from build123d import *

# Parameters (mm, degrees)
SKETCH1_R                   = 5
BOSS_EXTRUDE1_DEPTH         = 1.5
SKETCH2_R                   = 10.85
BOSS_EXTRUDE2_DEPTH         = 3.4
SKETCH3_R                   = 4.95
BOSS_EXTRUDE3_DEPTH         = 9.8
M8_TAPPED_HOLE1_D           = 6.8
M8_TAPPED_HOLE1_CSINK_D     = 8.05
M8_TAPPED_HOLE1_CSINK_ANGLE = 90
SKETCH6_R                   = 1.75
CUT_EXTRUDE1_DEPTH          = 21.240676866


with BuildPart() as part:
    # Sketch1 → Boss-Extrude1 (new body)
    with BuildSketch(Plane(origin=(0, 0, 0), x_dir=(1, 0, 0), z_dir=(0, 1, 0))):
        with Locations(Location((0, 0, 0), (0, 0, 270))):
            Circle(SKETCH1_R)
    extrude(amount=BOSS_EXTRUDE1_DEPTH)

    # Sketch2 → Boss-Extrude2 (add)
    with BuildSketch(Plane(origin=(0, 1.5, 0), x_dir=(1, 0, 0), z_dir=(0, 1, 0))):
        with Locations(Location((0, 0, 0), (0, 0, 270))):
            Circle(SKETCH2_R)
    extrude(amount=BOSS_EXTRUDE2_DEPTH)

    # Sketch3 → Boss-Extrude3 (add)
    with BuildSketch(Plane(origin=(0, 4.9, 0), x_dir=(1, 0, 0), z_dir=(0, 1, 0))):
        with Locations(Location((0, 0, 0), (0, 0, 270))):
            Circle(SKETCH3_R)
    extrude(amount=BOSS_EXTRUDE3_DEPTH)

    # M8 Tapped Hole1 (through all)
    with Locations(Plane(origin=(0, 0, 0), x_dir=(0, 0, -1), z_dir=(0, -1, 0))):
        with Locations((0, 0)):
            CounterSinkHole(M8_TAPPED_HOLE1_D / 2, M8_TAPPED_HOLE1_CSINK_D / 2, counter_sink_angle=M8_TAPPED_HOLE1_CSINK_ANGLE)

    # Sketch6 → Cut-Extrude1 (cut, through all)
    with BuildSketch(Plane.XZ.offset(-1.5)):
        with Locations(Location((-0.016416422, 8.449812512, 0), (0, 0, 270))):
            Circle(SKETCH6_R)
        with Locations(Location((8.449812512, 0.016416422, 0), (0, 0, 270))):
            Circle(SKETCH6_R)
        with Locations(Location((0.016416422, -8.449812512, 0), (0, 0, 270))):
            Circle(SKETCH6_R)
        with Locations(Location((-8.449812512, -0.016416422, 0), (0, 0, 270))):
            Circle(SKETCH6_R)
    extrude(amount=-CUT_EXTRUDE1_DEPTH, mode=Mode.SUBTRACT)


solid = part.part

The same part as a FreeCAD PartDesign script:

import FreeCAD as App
import Part
import Sketcher

V = App.Vector

doc = App.newDocument("Part")
body = doc.addObject("PartDesign::Body", "Body")

# Sketch on XZ plane
sketch1 = doc.addObject("Sketcher::SketchObject", "Sketch")
body.addObject(sketch1)
sketch1.AttachmentSupport = (doc.XZ_Plane, [""])
sketch1.MapMode = "FlatFace"
sketch1.addGeometry(Part.Circle(V(0, 0, 0), V(0, 0, 1), 5), False)
sketch1.addConstraint(Sketcher.Constraint("Coincident", 0, 3, -1, 1))
sketch1.addConstraint(Sketcher.Constraint("Diameter", 0, 10.0))
pad1 = doc.addObject("PartDesign::Pad", "Pad")
body.addObject(pad1)
pad1.Profile = sketch1
pad1.Length = 1.5
pad1.Reversed = True

# Sketch on XZ plane
sketch2 = doc.addObject("Sketcher::SketchObject", "Sketch001")
body.addObject(sketch2)
sketch2.AttachmentSupport = (doc.XZ_Plane, [""])
sketch2.MapMode = "FlatFace"
sketch2.AttachmentOffset = App.Placement(V(0, 0, -1.5), App.Rotation())
sketch2.addGeometry(Part.Circle(V(0, 0, 0), V(0, 0, 1), 10.85), False)
sketch2.addConstraint(Sketcher.Constraint("Coincident", 0, 3, -1, 1))
sketch2.addConstraint(Sketcher.Constraint("Diameter", 0, 21.7))
pad2 = doc.addObject("PartDesign::Pad", "Pad001")
body.addObject(pad2)
pad2.Profile = sketch2
pad2.Length = 3.4
pad2.Reversed = True

# Sketch on XZ plane
sketch3 = doc.addObject("Sketcher::SketchObject", "Sketch002")
body.addObject(sketch3)
sketch3.AttachmentSupport = (doc.XZ_Plane, [""])
sketch3.MapMode = "FlatFace"
sketch3.AttachmentOffset = App.Placement(V(0, 0, -4.9), App.Rotation())
sketch3.addGeometry(Part.Circle(V(0, 0, 0), V(0, 0, 1), 4.95), False)
sketch3.addConstraint(Sketcher.Constraint("Coincident", 0, 3, -1, 1))
sketch3.addConstraint(Sketcher.Constraint("Diameter", 0, 9.9))
pad3 = doc.addObject("PartDesign::Pad", "Pad002")
body.addObject(pad3)
pad3.Profile = sketch3
pad3.Length = 9.8
pad3.Reversed = True

# Sketch on XZ plane
sketch4 = doc.addObject("Sketcher::SketchObject", "Sketch003")
body.addObject(sketch4)
sketch4.AttachmentSupport = (doc.XZ_Plane, [""])
sketch4.MapMode = "FlatFace"
sketch4.addGeometry(Part.Circle(V(0, 0, 0), V(0, 0, 1), 3.4), False)
sketch4.addConstraint(Sketcher.Constraint("Coincident", 0, 3, -1, 1))
sketch4.addConstraint(Sketcher.Constraint("Diameter", 0, 6.8))
doc.recompute()
hole = doc.addObject("PartDesign::Hole", "Hole")
body.addObject(hole)
hole.Profile = sketch4
hole.ThreadType = "None"
hole.Diameter = 6.8
hole.DepthType = "ThroughAll"
hole.HoleCutType = "Countersink"
hole.HoleCutDiameter = 8.05
hole.HoleCutCountersinkAngle = 90

# Sketch on XZ plane
sketch5 = doc.addObject("Sketcher::SketchObject", "Sketch004")
body.addObject(sketch5)
sketch5.AttachmentSupport = (doc.XZ_Plane, [""])
sketch5.MapMode = "FlatFace"
sketch5.AttachmentOffset = App.Placement(V(0, 0, -1.5), App.Rotation())
sketch5.addGeometry(Part.Circle(V(-0.016416, 8.449813, 0), V(0, 0, 1), 1.75), False)
sketch5.addGeometry(Part.Circle(V(8.449813, 0.016416, 0), V(0, 0, 1), 1.75), False)
sketch5.addGeometry(Part.Circle(V(0.016416, -8.449813, 0), V(0, 0, 1), 1.75), False)
sketch5.addGeometry(Part.Circle(V(-8.449813, -0.016416, 0), V(0, 0, 1), 1.75), False)
sketch5.addConstraint(Sketcher.Constraint("Equal", 0, 1))
sketch5.addConstraint(Sketcher.Constraint("Equal", 1, 2))
sketch5.addConstraint(Sketcher.Constraint("Equal", 2, 3))
sketch5.addConstraint(Sketcher.Constraint("Symmetric", 0, 3, 2, 3, -1, 1))
sketch5.addConstraint(Sketcher.Constraint("Symmetric", 1, 3, 3, 3, -1, 1))
sketch5.addConstraint(Sketcher.Constraint("Diameter", 0, 3.5))
sketch5.addConstraint(Sketcher.Constraint("DistanceX", 0, 3, 1, 3, 8.466229))
sketch5.addConstraint(Sketcher.Constraint("DistanceY", 2, 3, 1, 3, 8.466229))
sketch5.addConstraint(Sketcher.Constraint("DistanceX", 0, 3, -1, 1, 0.016416))
sketch5.addConstraint(Sketcher.Constraint("DistanceY", -1, 1, 0, 3, 8.449813))
pocket1 = doc.addObject("PartDesign::Pocket", "Pocket")
body.addObject(pocket1)
pocket1.Profile = sketch5
pocket1.Type = "ThroughAll"

doc.recompute()
